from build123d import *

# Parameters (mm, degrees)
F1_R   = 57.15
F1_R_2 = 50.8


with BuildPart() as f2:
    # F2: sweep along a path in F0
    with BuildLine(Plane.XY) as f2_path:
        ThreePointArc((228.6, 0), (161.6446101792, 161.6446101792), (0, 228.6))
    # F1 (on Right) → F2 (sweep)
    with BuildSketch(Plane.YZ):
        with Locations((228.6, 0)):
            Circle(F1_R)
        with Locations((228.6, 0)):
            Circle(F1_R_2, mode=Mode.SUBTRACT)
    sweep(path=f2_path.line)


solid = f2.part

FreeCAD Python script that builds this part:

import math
import FreeCAD as App
import Part
import Sketcher
from FreeCAD import Vector
Q = App.Units.Quantity

doc = App.newDocument("Part")
body = doc.addObject("PartDesign::Body", "Body")

# Sketch on YZ plane
sketch1 = body.newObject("Sketcher::SketchObject", "Sketch")
sketch1.AttachmentSupport = (doc.getObject("YZ_Plane"), [""])
sketch1.MapMode = "FlatFace"
sketch1.addGeometry(Part.Circle(Vector(228.6, 0, 0), Vector(0, 0, 1), 57.15), False)
sketch1.addGeometry(Part.Circle(Vector(228.6, 0, 0), Vector(0, 0, 1), 50.8), False)
sketch1.addConstraint(Sketcher.Constraint("Coincident", 1, 3, 0, 3))
sketch1.addConstraint(Sketcher.Constraint("PointOnObject", 0, 3, -1))
sketch1.addConstraint(Sketcher.Constraint("Diameter", 1, Q("4 in")))
sketch1.addConstraint(Sketcher.Constraint("Diameter", 0, Q("4.5 in")))
sketch1.addConstraint(Sketcher.Constraint("DistanceX", -1, 1, 0, 3, Q("9 in")))

# Sketch on XY plane
sketch2 = body.newObject("Sketcher::SketchObject", "Sketch001")
sketch2.AttachmentSupport = (doc.getObject("XY_Plane"), [""])
sketch2.MapMode = "FlatFace"
sketch2.addGeometry(Part.ArcOfCircle(Part.Circle(Vector(0, 0, 0), Vector(0, 0, 1), 228.6), math.radians(0), math.radians(90)), False)
sketch2.addConstraint(Sketcher.Constraint("Coincident", 0, 3, -1, 1))
sketch2.addConstraint(Sketcher.Constraint("PointOnObject", 0, 1, -1))
sketch2.addConstraint(Sketcher.Constraint("PointOnObject", 0, 2, -2))
sketch2.addConstraint(Sketcher.Constraint("Radius", 0, Q("9 in")))
doc.recompute()

additivepipe = body.newObject("PartDesign::AdditivePipe", "AdditivePipe")
additivepipe.Profile = sketch1
additivepipe.Spine = (sketch2, ["Edge1"])

doc.recompute()
